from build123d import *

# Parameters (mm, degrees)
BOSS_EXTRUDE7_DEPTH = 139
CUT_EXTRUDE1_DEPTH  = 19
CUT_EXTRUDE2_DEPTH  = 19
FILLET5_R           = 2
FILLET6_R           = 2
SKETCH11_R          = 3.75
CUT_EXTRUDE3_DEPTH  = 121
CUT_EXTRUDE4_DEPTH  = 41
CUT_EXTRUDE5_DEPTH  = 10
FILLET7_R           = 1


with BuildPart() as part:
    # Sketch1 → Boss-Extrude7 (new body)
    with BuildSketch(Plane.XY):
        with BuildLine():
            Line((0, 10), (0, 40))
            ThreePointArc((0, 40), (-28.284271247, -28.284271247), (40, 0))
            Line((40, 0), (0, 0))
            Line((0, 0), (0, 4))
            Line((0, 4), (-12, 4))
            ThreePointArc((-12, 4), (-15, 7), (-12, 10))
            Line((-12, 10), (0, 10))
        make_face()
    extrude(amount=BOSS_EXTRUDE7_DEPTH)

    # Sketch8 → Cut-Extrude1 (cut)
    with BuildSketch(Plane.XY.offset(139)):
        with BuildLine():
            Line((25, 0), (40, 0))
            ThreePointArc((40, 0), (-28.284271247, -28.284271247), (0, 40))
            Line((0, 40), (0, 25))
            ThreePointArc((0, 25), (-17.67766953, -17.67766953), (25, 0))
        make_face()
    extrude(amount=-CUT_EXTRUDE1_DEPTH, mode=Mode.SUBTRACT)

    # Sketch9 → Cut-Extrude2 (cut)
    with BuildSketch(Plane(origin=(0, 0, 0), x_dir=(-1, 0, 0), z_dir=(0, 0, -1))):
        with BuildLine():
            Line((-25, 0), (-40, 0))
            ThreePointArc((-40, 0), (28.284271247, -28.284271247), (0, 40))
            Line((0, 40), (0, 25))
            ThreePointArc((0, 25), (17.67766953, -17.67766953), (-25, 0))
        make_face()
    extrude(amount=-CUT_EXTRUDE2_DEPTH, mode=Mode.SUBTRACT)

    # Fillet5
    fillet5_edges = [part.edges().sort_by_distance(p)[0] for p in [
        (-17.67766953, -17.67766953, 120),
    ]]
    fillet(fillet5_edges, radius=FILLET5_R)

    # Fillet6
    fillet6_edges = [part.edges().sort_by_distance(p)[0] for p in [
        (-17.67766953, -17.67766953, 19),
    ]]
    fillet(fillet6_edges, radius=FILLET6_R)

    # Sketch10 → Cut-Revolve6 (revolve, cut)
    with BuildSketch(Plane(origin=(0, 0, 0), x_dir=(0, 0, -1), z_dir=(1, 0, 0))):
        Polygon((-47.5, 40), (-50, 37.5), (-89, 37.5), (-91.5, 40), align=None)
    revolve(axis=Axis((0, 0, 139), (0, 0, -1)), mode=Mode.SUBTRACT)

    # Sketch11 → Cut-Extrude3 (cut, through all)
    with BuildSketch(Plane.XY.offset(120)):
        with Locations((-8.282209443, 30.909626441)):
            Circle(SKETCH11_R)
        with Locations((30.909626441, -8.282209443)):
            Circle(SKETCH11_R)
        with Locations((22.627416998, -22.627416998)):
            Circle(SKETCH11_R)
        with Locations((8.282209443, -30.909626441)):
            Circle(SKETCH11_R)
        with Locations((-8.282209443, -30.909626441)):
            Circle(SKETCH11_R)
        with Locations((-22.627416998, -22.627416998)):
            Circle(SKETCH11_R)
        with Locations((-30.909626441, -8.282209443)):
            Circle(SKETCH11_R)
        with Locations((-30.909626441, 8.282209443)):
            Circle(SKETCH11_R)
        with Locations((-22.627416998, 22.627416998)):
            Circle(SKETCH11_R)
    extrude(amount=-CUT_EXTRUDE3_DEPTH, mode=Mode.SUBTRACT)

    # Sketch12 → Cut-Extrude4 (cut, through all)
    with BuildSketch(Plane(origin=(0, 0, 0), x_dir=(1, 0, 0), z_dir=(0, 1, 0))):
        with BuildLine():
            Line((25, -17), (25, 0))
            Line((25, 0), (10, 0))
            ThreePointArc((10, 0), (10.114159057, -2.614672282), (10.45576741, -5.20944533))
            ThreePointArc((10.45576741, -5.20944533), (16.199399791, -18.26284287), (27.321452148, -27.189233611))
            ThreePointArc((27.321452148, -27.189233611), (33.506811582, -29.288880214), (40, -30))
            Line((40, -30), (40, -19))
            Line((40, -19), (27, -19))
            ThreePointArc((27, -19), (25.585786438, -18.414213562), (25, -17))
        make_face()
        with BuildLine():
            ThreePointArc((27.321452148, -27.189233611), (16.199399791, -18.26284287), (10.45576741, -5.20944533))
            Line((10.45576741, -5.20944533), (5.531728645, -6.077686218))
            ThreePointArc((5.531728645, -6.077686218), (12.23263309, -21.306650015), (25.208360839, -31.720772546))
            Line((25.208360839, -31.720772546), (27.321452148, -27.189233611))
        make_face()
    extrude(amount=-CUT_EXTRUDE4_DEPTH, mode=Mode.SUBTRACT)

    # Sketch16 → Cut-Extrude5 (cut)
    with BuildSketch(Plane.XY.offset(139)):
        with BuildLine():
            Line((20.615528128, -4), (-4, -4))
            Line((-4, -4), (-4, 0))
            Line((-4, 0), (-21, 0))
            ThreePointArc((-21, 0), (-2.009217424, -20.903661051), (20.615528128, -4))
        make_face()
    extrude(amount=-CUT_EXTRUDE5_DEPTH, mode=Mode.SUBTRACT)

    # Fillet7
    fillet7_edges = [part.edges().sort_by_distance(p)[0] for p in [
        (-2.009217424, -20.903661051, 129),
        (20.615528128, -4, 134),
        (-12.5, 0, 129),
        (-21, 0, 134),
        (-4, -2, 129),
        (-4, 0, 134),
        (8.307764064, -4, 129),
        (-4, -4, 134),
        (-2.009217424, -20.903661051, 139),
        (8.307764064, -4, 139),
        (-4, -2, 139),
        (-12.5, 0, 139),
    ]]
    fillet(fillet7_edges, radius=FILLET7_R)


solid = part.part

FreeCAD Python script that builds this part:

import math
import FreeCAD as App
import Part
import Sketcher

V = App.Vector
Q = App.Units.Quantity


def edges_at(feature, points):
    """Names of the edges that pass closest to the given points."""
    edges = feature.Shape.Edges
    near = lambda p: min(range(len(edges)), key=lambda i: edges[i].distToShape(Part.Vertex(*p))[0])
    return sorted({f"Edge{near(p) + 1}" for p in points})

doc = App.newDocument("Part")
params = doc.addObject("Spreadsheet::Sheet", "Params")
for row, (alias, value) in enumerate([
    ("sketch1_radius", "40 mm"),
    ("sketch1_radius2", "3 mm"),
    ("sketch1_width", "12 mm"),
    ("sketch1_height", "30 mm"),
    ("pad1_length", "139 mm"),
    ("sketch2_radius", "25 mm"),
    ("sketch2_radius2", "40 mm"),
    ("pocket1_length", "19 mm"),
    ("sketch3_radius", "40 mm"),
    ("sketch3_radius2", "25 mm"),
    ("pocket2_length", "19 mm"),
    ("fillet_radius", "2 mm"),
    ("fillet2_radius", "2 mm"),
    ("sketch4_height", "44 mm"),
    ("sketch4_height2", "39 mm"),
    ("groove_angle", "360 deg"),
    ("sketch5_diameter", "7.5 mm"),
    ("sketch6_radius", "30 mm"),
    ("sketch6_radius2", "35 mm"),
    ("sketch6_radius3", "2 mm"),
    ("sketch6_width", "15 mm"),
    ("sketch6_height", "17 mm"),
    ("sketch7_radius", "21 mm"),
    ("sketch7_width", "17 mm"),
    ("sketch7_height", "4 mm"),
    ("pocket5_length", "10 mm"),
    ("fillet3_radius", "1 mm"),
], start=1):
    params.set(f"A{row}", alias)
    params.set(f"B{row}", "=" + value)
    params.setAlias(f"B{row}", alias)

body = doc.addObject("PartDesign::Body", "Body")

# Sketch on XY plane
sketch1 = body.newObject("Sketcher::SketchObject", "Sketch")
sketch1.AttachmentSupport = (doc.getObject("XY_Plane"), [""])
sketch1.MapMode = "FlatFace"
sketch1.addGeometry(Part.LineSegment(V(0, 10, 0), V(0, 40, 0)), False)
sketch1.addGeometry(Part.ArcOfCircle(Part.Circle(V(0, 0, 0), V(0, 0, 1), 40), math.radians(90), math.radians(360)), False)
sketch1.addGeometry(Part.LineSegment(V(40, 0, 0), V(0, 0, 0)), False)
sketch1.addGeometry(Part.LineSegment(V(0, 0, 0), V(0, 4, 0)), False)
sketch1.addGeometry(Part.LineSegment(V(0, 4, 0), V(-12, 4, 0)), False)
sketch1.addGeometry(Part.ArcOfCircle(Part.Circle(V(-12, 7, 0), V(0, 0, 1), 3), math.radians(90), math.radians(270)), False)
sketch1.addGeometry(Part.LineSegment(V(-12, 10, 0), V(0, 10, 0)), False)
sketch1.addConstraint(Sketcher.Constraint("Coincident", 0, 2, 1, 1))
sketch1.addConstraint(Sketcher.Constraint("Coincident", 1, 2, 2, 1))
sketch1.addConstraint(Sketcher.Constraint("Coincident", 2, 2, 3, 1))
sketch1.addConstraint(Sketcher.Constraint("Coincident", 3, 2, 4, 1))
sketch1.addConstraint(Sketcher.Constraint("Tangent", 4, 2, 5, 2))
sketch1.addConstraint(Sketcher.Constraint("Tangent", 5, 1, 6, 1))
sketch1.addConstraint(Sketcher.Constraint("Coincident", 6, 2, 0, 1))
sketch1.addConstraint(Sketcher.Constraint("Vertical", 0))
sketch1.addConstraint(Sketcher.Constraint("Horizontal", 2))
sketch1.addConstraint(Sketcher.Constraint("Vertical", 3))
sketch1.addConstraint(Sketcher.Constraint("Horizontal", 4))
sketch1.addConstraint(Sketcher.Constraint("Horizontal", 6))
sketch1.addConstraint(Sketcher.Constraint("Coincident", 1, 3, -1, 1))
sketch1.addConstraint(Sketcher.Constraint("Coincident", 2, 2, -1, 1))
sketch1.addConstraint(Sketcher.Constraint("PointOnObject", 0, 2, -2))
sketch1.addConstraint(Sketcher.Constraint("Radius", 1, 40.0))
sketch1.addConstraint(Sketcher.Constraint("Radius", 5, 3.0))
sketch1.addConstraint(Sketcher.Constraint("DistanceX", 4, 2, 4, 1, 12.0))
sketch1.addConstraint(Sketcher.Constraint("DistanceY", 0, 1, 0, 2, 30.0))
sketch1.setExpression("Constraints[15]", "Params.sketch1_radius")
sketch1.setExpression("Constraints[16]", "Params.sketch1_radius2")
sketch1.setExpression("Constraints[17]", "Params.sketch1_width")
sketch1.setExpression("Constraints[18]", "Params.sketch1_height")
pad1 = body.newObject("PartDesign::Pad", "Pad")
pad1.Profile = sketch1
pad1.setExpression("Length", "Params.pad1_length")

# Sketch on XY plane
sketch2 = body.newObject("Sketcher::SketchObject", "Sketch001")
sketch2.AttachmentSupport = (doc.getObject("XY_Plane"), [""])
sketch2.MapMode = "FlatFace"
sketch2.AttachmentOffset = App.Placement(V(0, 0, 139), App.Rotation())
sketch2.addGeometry(Part.LineSegment(V(40, 0, 0), V(25, 0, 0)), False)
sketch2.addGeometry(Part.ArcOfCircle(Part.Circle(V(0, 0, 0), V(0, 0, 1), 25), math.radians(90), math.radians(360)), False)
sketch2.addGeometry(Part.LineSegment(V(0, 25, 0), V(0, 40, 0)), False)
sketch2.addGeometry(Part.ArcOfCircle(Part.Circle(V(0, 0, 0), V(0, 0, 1), 40), math.radians(90), math.radians(360)), False)
sketch2.addConstraint(Sketcher.Constraint("Coincident", 0, 2, 1, 2))
sketch2.addConstraint(Sketcher.Constraint("Coincident", 1, 1, 2, 1))
sketch2.addConstraint(Sketcher.Constraint("Coincident", 2, 2, 3, 1))
sketch2.addConstraint(Sketcher.Constraint("Coincident", 3, 2, 0, 1))
sketch2.addConstraint(Sketcher.Constraint("Horizontal", 0))
sketch2.addConstraint(Sketcher.Constraint("Vertical", 2))
sketch2.addConstraint(Sketcher.Constraint("Coincident", 1, 3, -1, 1))
sketch2.addConstraint(Sketcher.Constraint("Coincident", 3, 3, -1, 1))
sketch2.addConstraint(Sketcher.Constraint("PointOnObject", 0, 2, -1))
sketch2.addConstraint(Sketcher.Constraint("PointOnObject", 1, 1, -2))
sketch2.addConstraint(Sketcher.Constraint("Radius", 1, 25.0))
sketch2.addConstraint(Sketcher.Constraint("Radius", 3, 40.0))
sketch2.setExpression("Constraints[10]", "Params.sketch2_radius")
sketch2.setExpression("Constraints[11]", "Params.sketch2_radius2")
pocket1 = body.newObject("PartDesign::Pocket", "Pocket")
pocket1.Profile = sketch2
pocket1.setExpression("Length", "Params.pocket1_length")

# Sketch on XY plane
sketch3 = body.newObject("Sketcher::SketchObject", "Sketch002")
sketch3.AttachmentSupport = (doc.getObject("XY_Plane"), [""])
sketch3.MapMode = "FlatFace"
sketch3.addGeometry(Part.LineSegment(V(25, 0, 0), V(40, 0, 0)), False)
sketch3.addGeometry(Part.ArcOfCircle(Part.Circle(V(0, 0, 0), V(0, 0, 1), 40), math.radians(90), math.radians(360)), False)
sketch3.addGeometry(Part.LineSegment(V(0, 40, 0), V(0, 25, 0)), False)
sketch3.addGeometry(Part.ArcOfCircle(Part.Circle(V(0, 0, 0), V(0, 0, 1), 25), math.radians(90), math.radians(360)), False)
sketch3.addConstraint(Sketcher.Constraint("Coincident", 0, 2, 1, 2))
sketch3.addConstraint(Sketcher.Constraint("Coincident", 1, 1, 2, 1))
sketch3.addConstraint(Sketcher.Constraint("Coincident", 2, 2, 3, 1))
sketch3.addConstraint(Sketcher.Constraint("Coincident", 3, 2, 0, 1))
sketch3.addConstraint(Sketcher.Constraint("Horizontal", 0))
sketch3.addConstraint(Sketcher.Constraint("Vertical", 2))
sketch3.addConstraint(Sketcher.Constraint("Coincident", 1, 3, -1, 1))
sketch3.addConstraint(Sketcher.Constraint("Coincident", 3, 3, -1, 1))
sketch3.addConstraint(Sketcher.Constraint("PointOnObject", 0, 2, -1))
sketch3.addConstraint(Sketcher.Constraint("PointOnObject", 1, 1, -2))
sketch3.addConstraint(Sketcher.Constraint("Radius", 1, 40.0))
sketch3.addConstraint(Sketcher.Constraint("Radius", 3, 25.0))
sketch3.setExpression("Constraints[10]", "Params.sketch3_radius")
sketch3.setExpression("Constraints[11]", "Params.sketch3_radius2")
pocket2 = body.newObject("PartDesign::Pocket", "Pocket001")
pocket2.Profile = sketch3
pocket2.setExpression("Length", "Params.pocket2_length")
pocket2.Reversed = True
doc.recompute()

fillet = body.newObject("PartDesign::Fillet", "Fillet")
fillet.Base = (pocket2, edges_at(pocket2, [(-17.678, -17.678, 120)]))
fillet.setExpression("Radius", "Params.fillet_radius")
doc.recompute()

fillet2 = body.newObject("PartDesign::Fillet", "Fillet001")
fillet2.Base = (fillet, edges_at(fillet, [(-17.678, -17.678, 19)]))
fillet2.setExpression("Radius", "Params.fillet2_radius")

# Sketch on YZ plane
sketch4 = body.newObject("Sketcher::SketchObject", "Sketch003")
sketch4.AttachmentSupport = (doc.getObject("YZ_Plane"), [""])
sketch4.MapMode = "FlatFace"
sketch4.addGeometry(Part.LineSegment(V(37.5, 50, 0), V(40, 47.5, 0)), False)
sketch4.addGeometry(Part.LineSegment(V(40, 47.5, 0), V(40, 91.5, 0)), False)
sketch4.addGeometry(Part.LineSegment(V(40, 91.5, 0), V(37.5, 89, 0)), False)
sketch4.addGeometry(Part.LineSegment(V(37.5, 89, 0), V(37.5, 50, 0)), False)
sketch4.addConstraint(Sketcher.Constraint("Coincident", 0, 2, 1, 1))
sketch4.addConstraint(Sketcher.Constraint("Coincident", 1, 2, 2, 1))
sketch4.addConstraint(Sketcher.Constraint("Coincident", 2, 2, 3, 1))
sketch4.addConstraint(Sketcher.Constraint("Coincident", 3, 2, 0, 1))
sketch4.addConstraint(Sketcher.Constraint("Vertical", 1))
sketch4.addConstraint(Sketcher.Constraint("Vertical", 3))
sketch4.addConstraint(Sketcher.Constraint("Perpendicular", 0, 2))
sketch4.addConstraint(Sketcher.Constraint("Equal", 0, 2))
sketch4.addConstraint(Sketcher.Constraint("DistanceY", 1, 1, 1, 2, 44.0))
sketch4.addConstraint(Sketcher.Constraint("DistanceY", 3, 2, 3, 1, 39.0))
sketch4.addConstraint(Sketcher.Constraint("DistanceX", -1, 1, 0, 2, 40.0))
sketch4.addConstraint(Sketcher.Constraint("DistanceY", -1, 1, 2, 2, 89.0))
sketch4.setExpression("Constraints[8]", "Params.sketch4_height")
sketch4.setExpression("Constraints[9]", "Params.sketch4_height2")
groove = body.newObject("PartDesign::Groove", "Groove")
groove.Profile = sketch4
groove.ReferenceAxis = (sketch4, ["V_Axis"])
groove.setExpression("Angle", "Params.groove_angle")

# Sketch on XY plane
sketch5 = body.newObject("Sketcher::SketchObject", "Sketch004")
sketch5.AttachmentSupport = (doc.getObject("XY_Plane"), [""])
sketch5.MapMode = "FlatFace"
sketch5.AttachmentOffset = App.Placement(V(0, 0, 120), App.Rotation())
sketch5.addGeometry(Part.Circle(V(-8.282209, 30.909626, 0), V(0, 0, 1), 3.75), False)
sketch5.addGeometry(Part.Circle(V(30.909626, -8.282209, 0), V(0, 0, 1), 3.75), False)
sketch5.addGeometry(Part.Circle(V(22.627417, -22.627417, 0), V(0, 0, 1), 3.75), False)
sketch5.addGeometry(Part.Circle(V(8.282209, -30.909626, 0), V(0, 0, 1), 3.75), False)
sketch5.addGeometry(Part.Circle(V(-8.282209, -30.909626, 0), V(0, 0, 1), 3.75), False)
sketch5.addGeometry(Part.Circle(V(-22.627417, -22.627417, 0), V(0, 0, 1), 3.75), False)
sketch5.addGeometry(Part.Circle(V(-30.909626, -8.282209, 0), V(0, 0, 1), 3.75), False)
sketch5.addGeometry(Part.Circle(V(-30.909626, 8.282209, 0), V(0, 0, 1), 3.75), False)
sketch5.addGeometry(Part.Circle(V(-22.627417, 22.627417, 0), V(0, 0, 1), 3.75), False)
sketch5.addConstraint(Sketcher.Constraint("Equal", 0, 1))
sketch5.addConstraint(Sketcher.Constraint("Equal", 1, 2))
sketch5.addConstraint(Sketcher.Constraint("Equal", 2, 3))
sketch5.addConstraint(Sketcher.Constraint("Equal", 3, 4))
sketch5.addConstraint(Sketcher.Constraint("Equal", 4, 5))
sketch5.addConstraint(Sketcher.Constraint("Equal", 5, 6))
sketch5.addConstraint(Sketcher.Constraint("Equal", 6, 7))
sketch5.addConstraint(Sketcher.Constraint("Equal", 7, 8))
sketch5.addConstraint(Sketcher.Constraint("Symmetric", 0, 3, 3, 3, -1, 1))
sketch5.addConstraint(Sketcher.Constraint("Symmetric", 1, 3, 7, 3, -1, 1))
sketch5.addConstraint(Sketcher.Constraint("Symmetric", 2, 3, 8, 3, -1, 1))
sketch5.addConstraint(Sketcher.Constraint("Symmetric", 3, 3, 4, 3, -2))
sketch5.addConstraint(Sketcher.Constraint("Symmetric", 2, 3, 5, 3, -2))
sketch5.addConstraint(Sketcher.Constraint("Symmetric", 1, 3, 6, 3, -2))
sketch5.addConstraint(Sketcher.Constraint("Diameter", 0, 7.5))
sketch5.addConstraint(Sketcher.Constraint("DistanceX", 0, 3, -1, 1, 8.282209))
sketch5.addConstraint(Sketcher.Constraint("DistanceY", 1, 3, -1, 1, 8.282209))
sketch5.addConstraint(Sketcher.Constraint("DistanceX", 2, 3, 1, 3, 8.282209))
sketch5.addConstraint(Sketcher.Constraint("DistanceY", 3, 3, 2, 3, 8.282209))
sketch5.addConstraint(Sketcher.Constraint("DistanceY", -1, 1, 0, 3, 30.909626))
sketch5.addConstraint(Sketcher.Constraint("DistanceX", -1, 1, 1, 3, 30.909626))
sketch5.setExpression("Constraints[14]", "Params.sketch5_diameter")
pocket3 = body.newObject("PartDesign::Pocket", "Pocket002")
pocket3.Profile = sketch5
pocket3.Type = "ThroughAll"

# Sketch on XZ plane
sketch6 = body.newObject("Sketcher::SketchObject", "Sketch005")
sketch6.AttachmentSupport = (doc.getObject("XZ_Plane"), [""])
sketch6.MapMode = "FlatFace"
sketch6.addGeometry(Part.LineSegment(V(25, 17, 0), V(25, 0, 0)), False)
sketch6.addGeometry(Part.LineSegment(V(25, 0, 0), V(10, 0, 0)), False)
sketch6.addGeometry(Part.ArcOfCircle(Part.Circle(V(40, 0, 0), V(0, 0, 1), 30), math.radians(170), math.radians(180)), False)
sketch6.addGeometry(Part.LineSegment(V(10.455767, 5.209445, 0), V(5.531729, 6.077686, 0)), False)
sketch6.addGeometry(Part.ArcOfCircle(Part.Circle(V(40, 0, 0), V(0, 0, 1), 35), math.radians(115), math.radians(170)), False)
sketch6.addGeometry(Part.LineSegment(V(25.208361, 31.720773, 0), V(27.321452, 27.189234, 0)), False)
sketch6.addGeometry(Part.ArcOfCircle(Part.Circle(V(40, 0, 0), V(0, 0, 1), 30), math.radians(90), math.radians(115)), False)
sketch6.addGeometry(Part.LineSegment(V(40, 30, 0), V(40, 19, 0)), False)
sketch6.addGeometry(Part.LineSegment(V(40, 19, 0), V(27, 19, 0)), False)
sketch6.addGeometry(Part.ArcOfCircle(Part.Circle(V(27, 17, 0), V(0, 0, 1), 2), math.radians(90), math.radians(180)), False)
sketch6.addConstraint(Sketcher.Constraint("Coincident", 0, 2, 1, 1))
sketch6.addConstraint(Sketcher.Constraint("Coincident", 1, 2, 2, 2))
sketch6.addConstraint(Sketcher.Constraint("Coincident", 2, 1, 3, 1))
sketch6.addConstraint(Sketcher.Constraint("Coincident", 3, 2, 4, 2))
sketch6.addConstraint(Sketcher.Constraint("Coincident", 4, 1, 5, 1))
sketch6.addConstraint(Sketcher.Constraint("Coincident", 5, 2, 6, 2))
sketch6.addConstraint(Sketcher.Constraint("Coincident", 6, 1, 7, 1))
sketch6.addConstraint(Sketcher.Constraint("Coincident", 7, 2, 8, 1))
sketch6.addConstraint(Sketcher.Constraint("Tangent", 8, 2, 9, 1))
sketch6.addConstraint(Sketcher.Constraint("Tangent", 9, 2, 0, 1))
sketch6.addConstraint(Sketcher.Constraint("Vertical", 0))
sketch6.addConstraint(Sketcher.Constraint("Horizontal", 1))
sketch6.addConstraint(Sketcher.Constraint("Vertical", 7))
sketch6.addConstraint(Sketcher.Constraint("Horizontal", 8))
sketch6.addConstraint(Sketcher.Constraint("Coincident", 4, 3, 2, 3))
sketch6.addConstraint(Sketcher.Constraint("Coincident", 6, 3, 2, 3))
sketch6.addConstraint(Sketcher.Constraint("Equal", 2, 6))
sketch6.addConstraint(Sketcher.Constraint("PointOnObject", 2, 3, -1))
sketch6.addConstraint(Sketcher.Constraint("PointOnObject", 0, 2, -1))
sketch6.addConstraint(Sketcher.Constraint("Vertical", 4, 3, 6, 1))
sketch6.addConstraint(Sketcher.Constraint("Radius", 2, 30.0))
sketch6.addConstraint(Sketcher.Constraint("Radius", 4, 35.0))
sketch6.addConstraint(Sketcher.Constraint("Radius", 9, 2.0))
sketch6.addConstraint(Sketcher.Constraint("DistanceX", 1, 2, 1, 1, 15.0))
sketch6.addConstraint(Sketcher.Constraint("DistanceY", 0, 2, 0, 1, 17.0))
sketch6.addConstraint(Sketcher.Constraint("Angle", 3, Q("170 deg")))
sketch6.addConstraint(Sketcher.Constraint("Angle", 5, Q("-65 deg")))
sketch6.addConstraint(Sketcher.Constraint("DistanceX", -1, 1, 2, 3, 40.0))
sketch6.addConstraint(Sketcher.Constraint("DistanceX", -1, 1, 3, 2, 5.531729))
sketch6.addConstraint(Sketcher.Constraint("DistanceX", -1, 1, 4, 1, 25.208361))
sketch6.setExpression("Constraints[20]", "Params.sketch6_radius")
sketch6.setExpression("Constraints[21]", "Params.sketch6_radius2")
sketch6.setExpression("Constraints[22]", "Params.sketch6_radius3")
sketch6.setExpression("Constraints[23]", "Params.sketch6_width")
sketch6.setExpression("Constraints[24]", "Params.sketch6_height")
pocket4 = body.newObject("PartDesign::Pocket", "Pocket003")
pocket4.Profile = sketch6
pocket4.Type = "ThroughAll"
pocket4.Reversed = True

# Sketch on XY plane
sketch7 = body.newObject("Sketcher::SketchObject", "Sketch006")
sketch7.AttachmentSupport = (doc.getObject("XY_Plane"), [""])
sketch7.MapMode = "FlatFace"
sketch7.AttachmentOffset = App.Placement(V(0, 0, 139), App.Rotation())
sketch7.addGeometry(Part.LineSegment(V(20.615528, -4, 0), V(-4, -4, 0)), False)
sketch7.addGeometry(Part.LineSegment(V(-4, -4, 0), V(-4, 0, 0)), False)
sketch7.addGeometry(Part.LineSegment(V(-4, 0, 0), V(-21, 0, 0)), False)
sketch7.addGeometry(Part.ArcOfCircle(Part.Circle(V(0, 0, 0), V(0, 0, 1), 21), math.radians(180), math.radians(349.019425)), False)
sketch7.addConstraint(Sketcher.Constraint("Coincident", 0, 2, 1, 1))
sketch7.addConstraint(Sketcher.Constraint("Coincident", 1, 2, 2, 1))
sketch7.addConstraint(Sketcher.Constraint("Coincident", 2, 2, 3, 1))
sketch7.addConstraint(Sketcher.Constraint("Coincident", 3, 2, 0, 1))
sketch7.addConstraint(Sketcher.Constraint("Horizontal", 0))
sketch7.addConstraint(Sketcher.Constraint("Vertical", 1))
sketch7.addConstraint(Sketcher.Constraint("Horizontal", 2))
sketch7.addConstraint(Sketcher.Constraint("Coincident", 3, 3, -1, 1))
sketch7.addConstraint(Sketcher.Constraint("PointOnObject", 1, 2, -1))
sketch7.addConstraint(Sketcher.Constraint("Radius", 3, 21.0))
sketch7.addConstraint(Sketcher.Constraint("DistanceX", 2, 2, 2, 1, 17.0))
sketch7.addConstraint(Sketcher.Constraint("DistanceY", 1, 1, 1, 2, 4.0))
sketch7.setExpression("Constraints[9]", "Params.sketch7_radius")
sketch7.setExpression("Constraints[10]", "Params.sketch7_width")
sketch7.setExpression("Constraints[11]", "Params.sketch7_height")
pocket5 = body.newObject("PartDesign::Pocket", "Pocket004")
pocket5.Profile = sketch7
pocket5.setExpression("Length", "Params.pocket5_length")
doc.recompute()

fillet3 = body.newObject("PartDesign::Fillet", "Fillet002")
fillet3.Base = (pocket5, edges_at(pocket5, [
    (-2.009, -20.904, 129),
    (20.616, -4, 134),
    (-12.5, 0, 129),
    (-21, 0, 134),
    (-4, -2, 129),
    (-4, 0, 134),
    (8.308, -4, 129),
    (-4, -4, 134),
    (-2.009, -20.904, 139),
    (8.308, -4, 139),
    (-4, -2, 139),
    (-12.5, 0, 139),
]))
fillet3.setExpression("Radius", "Params.fillet3_radius")

doc.recompute()
